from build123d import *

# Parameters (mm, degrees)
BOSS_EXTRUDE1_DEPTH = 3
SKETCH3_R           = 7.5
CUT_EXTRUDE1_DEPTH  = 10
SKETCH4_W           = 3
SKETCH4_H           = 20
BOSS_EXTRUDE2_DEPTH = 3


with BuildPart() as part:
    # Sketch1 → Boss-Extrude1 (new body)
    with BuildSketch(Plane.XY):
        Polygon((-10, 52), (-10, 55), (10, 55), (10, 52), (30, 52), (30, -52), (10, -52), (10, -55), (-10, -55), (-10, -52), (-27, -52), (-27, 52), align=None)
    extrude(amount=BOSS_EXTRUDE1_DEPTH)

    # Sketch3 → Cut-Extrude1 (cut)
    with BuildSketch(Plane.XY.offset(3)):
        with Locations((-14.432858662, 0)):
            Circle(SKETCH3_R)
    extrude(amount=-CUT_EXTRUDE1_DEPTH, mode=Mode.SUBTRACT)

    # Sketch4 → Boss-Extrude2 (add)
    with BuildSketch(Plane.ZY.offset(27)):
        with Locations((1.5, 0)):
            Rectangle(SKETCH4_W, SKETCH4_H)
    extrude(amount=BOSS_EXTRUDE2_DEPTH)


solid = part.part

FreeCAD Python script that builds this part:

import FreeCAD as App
import Part
import Sketcher
Q = App.Units.Quantity


def add_polygon(sketch, points):
    """Adds a closed chain of lines whose ends are joined by coincident constraints."""
    first, n = sketch.GeometryCount, len(points)
    for a, b in zip(points, points[1:] + points[:1]):
        sketch.addGeometry(Part.LineSegment(App.Vector(*a, 0), App.Vector(*b, 0)), False)
    for i in range(n):
        sketch.addConstraint(Sketcher.Constraint("Coincident", first + i, 2, first + (i + 1) % n, 1))

doc = App.newDocument("Part")
body = doc.addObject("PartDesign::Body", "Body")

# Sketch on XY plane
sketch1 = body.newObject("Sketcher::SketchObject", "Sketch")
sketch1.AttachmentSupport = (doc.getObject("XY_Plane"), [""])
sketch1.MapMode = "FlatFace"
add_polygon(sketch1, [(-10, 55), (-10, 52), (-27, 52), (-27, -52), (-10, -52), (-10, -55), (10, -55), (10, -52), (30, -52), (30, 52), (10, 52), (10, 55)])  # lines 0-11
sketch1.addConstraint([
    Sketcher.Constraint("Vertical", 0),
    Sketcher.Constraint("Horizontal", 1),
    Sketcher.Constraint("Vertical", 2),
    Sketcher.Constraint("Horizontal", 3),
    Sketcher.Constraint("Vertical", 4),
    Sketcher.Constraint("Horizontal", 5),
    Sketcher.Constraint("Vertical", 6),
    Sketcher.Constraint("Horizontal", 7),
    Sketcher.Constraint("Vertical", 8),
    Sketcher.Constraint("Horizontal", 9),
    Sketcher.Constraint("Vertical", 10),
    Sketcher.Constraint("Horizontal", 11),
    Sketcher.Constraint("Symmetric", 0, 2, 6, 2, -1, 1),
    Sketcher.Constraint("Symmetric", 3, 2, 9, 2, -1, 1),
    Sketcher.Constraint("Symmetric", 3, 2, 6, 2, -2),
    Sketcher.Constraint("Equal", 5, 7),
    Sketcher.Constraint("Equal", 0, 4),
    Sketcher.Constraint("DistanceX", 1, 2, 1, 1, Q("17 mm")),
    Sketcher.Constraint("DistanceX", 5, 1, 5, 2, Q("20 mm")),
    Sketcher.Constraint("DistanceY", 0, 2, 0, 1, Q("3 mm")),
    Sketcher.Constraint("DistanceY", 2, 2, 2, 1, Q("104 mm")),
])
pad1 = body.newObject("PartDesign::Pad", "Pad")
pad1.Profile = sketch1
pad1.Length = 3

# Sketch on XY plane
sketch2 = body.newObject("Sketcher::SketchObject", "Sketch001")
sketch2.AttachmentSupport = (doc.getObject("XY_Plane"), [""])
sketch2.MapMode = "FlatFace"
sketch2.AttachmentOffset = App.Placement(App.Vector(0, 0, 3), App.Rotation())
sketch2.addGeometry(Part.Circle(App.Vector(-14, 0, 0), App.Vector(0, 0, 1), 8), False)
sketch2.addConstraint([
    Sketcher.Constraint("PointOnObject", 0, 3, -1),
    Sketcher.Constraint("Diameter", 0, Q("15 mm")),
    Sketcher.Constraint("DistanceX", 0, 3, -1, 1, Q("14.432859 mm")),
])
pocket1 = body.newObject("PartDesign::Pocket", "Pocket")
pocket1.Profile = sketch2
pocket1.Length = 10

# Sketch on YZ plane
sketch3 = body.newObject("Sketcher::SketchObject", "Sketch002")
sketch3.AttachmentSupport = (doc.getObject("YZ_Plane"), [""])
sketch3.MapMode = "FlatFace"
sketch3.AttachmentOffset = App.Placement(App.Vector(0, 0, -27), App.Rotation())
add_polygon(sketch3, [(10, 0), (-10, 0), (-10, 3), (10, 3)])  # lines 0-3
sketch3.addConstraint([
    Sketcher.Constraint("Horizontal", 0),
    Sketcher.Constraint("Vertical", 1),
    Sketcher.Constraint("Horizontal", 2),
    Sketcher.Constraint("Vertical", 3),
    Sketcher.Constraint("Symmetric", 0, 2, 3, 2, -1, 1),
    Sketcher.Constraint("DistanceX", 0, 2, 0, 1, Q("20 mm")),
    Sketcher.Constraint("DistanceY", 1, 1, 1, 2, Q("3 mm")),
])
pad2 = body.newObject("PartDesign::Pad", "Pad001")
pad2.Profile = sketch3
pad2.Length = 3
pad2.Reversed = True

doc.recompute()
